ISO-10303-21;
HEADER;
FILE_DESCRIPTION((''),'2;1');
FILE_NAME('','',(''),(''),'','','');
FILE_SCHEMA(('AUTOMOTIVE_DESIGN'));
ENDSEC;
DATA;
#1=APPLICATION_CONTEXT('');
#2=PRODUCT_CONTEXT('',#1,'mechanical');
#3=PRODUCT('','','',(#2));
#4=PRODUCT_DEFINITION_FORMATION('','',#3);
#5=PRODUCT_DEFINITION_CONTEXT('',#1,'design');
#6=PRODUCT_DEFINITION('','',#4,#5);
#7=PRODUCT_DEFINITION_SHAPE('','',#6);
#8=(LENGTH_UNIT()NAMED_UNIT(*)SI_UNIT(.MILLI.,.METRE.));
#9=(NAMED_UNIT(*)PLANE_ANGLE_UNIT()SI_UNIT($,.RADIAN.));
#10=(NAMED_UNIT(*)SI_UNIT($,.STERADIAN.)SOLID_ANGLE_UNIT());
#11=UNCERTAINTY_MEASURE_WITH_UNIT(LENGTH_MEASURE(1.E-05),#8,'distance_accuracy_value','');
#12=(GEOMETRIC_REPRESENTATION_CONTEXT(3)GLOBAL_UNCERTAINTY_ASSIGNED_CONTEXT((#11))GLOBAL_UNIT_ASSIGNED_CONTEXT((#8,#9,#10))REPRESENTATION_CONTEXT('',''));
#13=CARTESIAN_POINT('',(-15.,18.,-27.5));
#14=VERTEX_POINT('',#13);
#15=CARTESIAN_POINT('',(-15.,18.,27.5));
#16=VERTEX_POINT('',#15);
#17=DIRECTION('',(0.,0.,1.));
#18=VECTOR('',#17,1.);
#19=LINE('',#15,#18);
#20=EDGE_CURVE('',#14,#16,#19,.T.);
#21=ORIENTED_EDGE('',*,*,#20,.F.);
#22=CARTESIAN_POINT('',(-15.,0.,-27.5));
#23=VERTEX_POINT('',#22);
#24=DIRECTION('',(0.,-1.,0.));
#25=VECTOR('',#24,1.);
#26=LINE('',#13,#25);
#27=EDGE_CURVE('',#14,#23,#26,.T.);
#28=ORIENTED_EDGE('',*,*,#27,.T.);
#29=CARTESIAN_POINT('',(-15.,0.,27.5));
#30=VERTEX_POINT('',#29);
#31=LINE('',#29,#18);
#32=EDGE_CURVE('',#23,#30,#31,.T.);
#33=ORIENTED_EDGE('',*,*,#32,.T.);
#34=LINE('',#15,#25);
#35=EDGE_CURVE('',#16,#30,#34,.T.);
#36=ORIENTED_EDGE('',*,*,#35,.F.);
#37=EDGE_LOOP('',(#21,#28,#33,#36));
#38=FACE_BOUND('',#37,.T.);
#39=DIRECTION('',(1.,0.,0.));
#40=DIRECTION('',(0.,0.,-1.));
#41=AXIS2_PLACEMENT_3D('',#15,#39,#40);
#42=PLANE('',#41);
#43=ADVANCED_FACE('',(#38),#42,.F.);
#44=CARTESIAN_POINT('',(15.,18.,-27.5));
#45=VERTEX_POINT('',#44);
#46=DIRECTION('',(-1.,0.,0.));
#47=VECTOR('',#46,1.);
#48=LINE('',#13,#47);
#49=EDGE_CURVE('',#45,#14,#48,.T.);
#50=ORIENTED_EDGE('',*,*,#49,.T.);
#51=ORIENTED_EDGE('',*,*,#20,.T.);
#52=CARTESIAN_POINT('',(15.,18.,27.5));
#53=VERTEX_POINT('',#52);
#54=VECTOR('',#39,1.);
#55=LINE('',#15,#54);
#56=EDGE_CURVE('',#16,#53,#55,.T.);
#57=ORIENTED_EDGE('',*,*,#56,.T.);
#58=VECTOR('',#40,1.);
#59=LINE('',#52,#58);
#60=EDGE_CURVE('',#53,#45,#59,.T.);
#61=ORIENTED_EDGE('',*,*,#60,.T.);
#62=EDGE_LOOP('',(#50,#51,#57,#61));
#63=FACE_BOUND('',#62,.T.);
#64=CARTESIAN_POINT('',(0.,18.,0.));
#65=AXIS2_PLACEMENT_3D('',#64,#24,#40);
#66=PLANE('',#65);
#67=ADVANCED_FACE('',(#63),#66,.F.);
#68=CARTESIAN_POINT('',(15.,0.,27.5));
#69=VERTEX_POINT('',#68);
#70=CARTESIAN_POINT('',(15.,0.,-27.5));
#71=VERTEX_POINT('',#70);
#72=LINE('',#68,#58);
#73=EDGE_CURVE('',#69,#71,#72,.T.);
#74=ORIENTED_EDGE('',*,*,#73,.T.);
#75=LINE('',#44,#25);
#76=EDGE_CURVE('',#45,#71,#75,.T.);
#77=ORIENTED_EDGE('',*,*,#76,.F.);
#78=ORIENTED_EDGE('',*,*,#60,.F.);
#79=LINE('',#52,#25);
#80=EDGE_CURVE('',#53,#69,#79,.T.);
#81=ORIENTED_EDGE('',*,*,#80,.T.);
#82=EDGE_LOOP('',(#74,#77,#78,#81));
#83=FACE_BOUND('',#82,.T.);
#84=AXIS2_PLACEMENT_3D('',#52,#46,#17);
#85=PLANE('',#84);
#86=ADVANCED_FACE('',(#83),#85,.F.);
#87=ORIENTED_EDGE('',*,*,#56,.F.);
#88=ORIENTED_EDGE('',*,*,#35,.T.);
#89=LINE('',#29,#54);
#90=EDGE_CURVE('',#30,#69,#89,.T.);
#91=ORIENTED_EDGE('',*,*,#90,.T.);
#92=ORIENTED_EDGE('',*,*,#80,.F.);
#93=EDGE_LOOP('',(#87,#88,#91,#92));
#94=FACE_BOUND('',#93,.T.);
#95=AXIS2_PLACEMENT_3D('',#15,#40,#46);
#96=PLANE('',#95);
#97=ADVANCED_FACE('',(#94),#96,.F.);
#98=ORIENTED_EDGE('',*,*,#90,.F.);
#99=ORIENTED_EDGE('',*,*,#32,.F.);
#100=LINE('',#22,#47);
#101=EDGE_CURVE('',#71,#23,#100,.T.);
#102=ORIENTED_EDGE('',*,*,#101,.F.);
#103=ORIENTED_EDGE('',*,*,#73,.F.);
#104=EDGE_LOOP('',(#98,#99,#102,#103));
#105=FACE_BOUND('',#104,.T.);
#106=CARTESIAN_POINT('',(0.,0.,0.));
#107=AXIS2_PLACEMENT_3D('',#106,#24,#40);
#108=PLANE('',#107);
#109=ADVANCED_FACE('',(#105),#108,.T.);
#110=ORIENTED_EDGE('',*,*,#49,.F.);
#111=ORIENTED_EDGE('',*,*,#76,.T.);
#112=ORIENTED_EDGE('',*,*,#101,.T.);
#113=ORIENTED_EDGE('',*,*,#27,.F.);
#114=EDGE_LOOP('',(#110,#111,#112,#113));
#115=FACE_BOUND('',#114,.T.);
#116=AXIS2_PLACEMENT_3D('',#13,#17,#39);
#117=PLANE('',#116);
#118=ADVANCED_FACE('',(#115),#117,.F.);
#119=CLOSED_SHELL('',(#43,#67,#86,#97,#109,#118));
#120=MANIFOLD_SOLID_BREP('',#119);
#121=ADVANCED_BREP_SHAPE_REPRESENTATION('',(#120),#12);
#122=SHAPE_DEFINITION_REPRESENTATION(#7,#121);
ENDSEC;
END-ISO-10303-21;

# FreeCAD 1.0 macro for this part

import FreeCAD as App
import Part
import Sketcher
from FreeCAD import Vector
Q = App.Units.Quantity


def add_polygon(sketch, points):
    """Adds a closed chain of lines whose ends are joined by coincident constraints."""
    first, n = sketch.GeometryCount, len(points)
    for a, b in zip(points, points[1:] + points[:1]):
        sketch.addGeometry(Part.LineSegment(App.Vector(*a, 0), App.Vector(*b, 0)), False)
    for i in range(n):
        sketch.addConstraint(Sketcher.Constraint("Coincident", first + i, 2, first + (i + 1) % n, 1))

doc = App.newDocument("Part")
params = doc.addObject("Spreadsheet::Sheet", "Params")
for row, (alias, value) in enumerate([
    ("sketch1_width", "30 mm"),
    ("sketch1_height", "55 mm"),
    ("pad1_length", "18 mm"),
], start=1):
    params.set(f"A{row}", alias)
    params.set(f"B{row}", "=" + value)
    params.setAlias(f"B{row}", alias)

body = doc.addObject("PartDesign::Body", "Body")

sketch1 = doc.addObject("Sketcher::SketchObject", "Sketch")
body.addObject(sketch1)
sketch1.AttachmentSupport = (doc.XZ_Plane, [""])
sketch1.MapMode = "FlatFace"
add_polygon(sketch1, [(-15, -28), (-15, 28), (15, 28), (15, -28)])
sketch1.addConstraint(Sketcher.Constraint("Vertical", 0))
sketch1.addConstraint(Sketcher.Constraint("Horizontal", 1))
sketch1.addConstraint(Sketcher.Constraint("Vertical", 2))
sketch1.addConstraint(Sketcher.Constraint("Horizontal", 3))
sketch1.addConstraint(Sketcher.Constraint("Symmetric", 0, 2, 2, 2, -1, 1))
sketch1.addConstraint(Sketcher.Constraint("DistanceX", 1, 1, 1, 2, Q("30 mm")))
sketch1.addConstraint(Sketcher.Constraint("DistanceY", 0, 1, 0, 2, Q("55 mm")))
sketch1.setExpression("Constraints[9]", "Params.sketch1_width")
sketch1.setExpression("Constraints[10]", "Params.sketch1_height")
pad1 = doc.addObject("PartDesign::Pad", "Pad")
body.addObject(pad1)
pad1.Profile = sketch1
pad1.setExpression("Length", "Params.pad1_length")
pad1.Reversed = True

doc.recompute()
